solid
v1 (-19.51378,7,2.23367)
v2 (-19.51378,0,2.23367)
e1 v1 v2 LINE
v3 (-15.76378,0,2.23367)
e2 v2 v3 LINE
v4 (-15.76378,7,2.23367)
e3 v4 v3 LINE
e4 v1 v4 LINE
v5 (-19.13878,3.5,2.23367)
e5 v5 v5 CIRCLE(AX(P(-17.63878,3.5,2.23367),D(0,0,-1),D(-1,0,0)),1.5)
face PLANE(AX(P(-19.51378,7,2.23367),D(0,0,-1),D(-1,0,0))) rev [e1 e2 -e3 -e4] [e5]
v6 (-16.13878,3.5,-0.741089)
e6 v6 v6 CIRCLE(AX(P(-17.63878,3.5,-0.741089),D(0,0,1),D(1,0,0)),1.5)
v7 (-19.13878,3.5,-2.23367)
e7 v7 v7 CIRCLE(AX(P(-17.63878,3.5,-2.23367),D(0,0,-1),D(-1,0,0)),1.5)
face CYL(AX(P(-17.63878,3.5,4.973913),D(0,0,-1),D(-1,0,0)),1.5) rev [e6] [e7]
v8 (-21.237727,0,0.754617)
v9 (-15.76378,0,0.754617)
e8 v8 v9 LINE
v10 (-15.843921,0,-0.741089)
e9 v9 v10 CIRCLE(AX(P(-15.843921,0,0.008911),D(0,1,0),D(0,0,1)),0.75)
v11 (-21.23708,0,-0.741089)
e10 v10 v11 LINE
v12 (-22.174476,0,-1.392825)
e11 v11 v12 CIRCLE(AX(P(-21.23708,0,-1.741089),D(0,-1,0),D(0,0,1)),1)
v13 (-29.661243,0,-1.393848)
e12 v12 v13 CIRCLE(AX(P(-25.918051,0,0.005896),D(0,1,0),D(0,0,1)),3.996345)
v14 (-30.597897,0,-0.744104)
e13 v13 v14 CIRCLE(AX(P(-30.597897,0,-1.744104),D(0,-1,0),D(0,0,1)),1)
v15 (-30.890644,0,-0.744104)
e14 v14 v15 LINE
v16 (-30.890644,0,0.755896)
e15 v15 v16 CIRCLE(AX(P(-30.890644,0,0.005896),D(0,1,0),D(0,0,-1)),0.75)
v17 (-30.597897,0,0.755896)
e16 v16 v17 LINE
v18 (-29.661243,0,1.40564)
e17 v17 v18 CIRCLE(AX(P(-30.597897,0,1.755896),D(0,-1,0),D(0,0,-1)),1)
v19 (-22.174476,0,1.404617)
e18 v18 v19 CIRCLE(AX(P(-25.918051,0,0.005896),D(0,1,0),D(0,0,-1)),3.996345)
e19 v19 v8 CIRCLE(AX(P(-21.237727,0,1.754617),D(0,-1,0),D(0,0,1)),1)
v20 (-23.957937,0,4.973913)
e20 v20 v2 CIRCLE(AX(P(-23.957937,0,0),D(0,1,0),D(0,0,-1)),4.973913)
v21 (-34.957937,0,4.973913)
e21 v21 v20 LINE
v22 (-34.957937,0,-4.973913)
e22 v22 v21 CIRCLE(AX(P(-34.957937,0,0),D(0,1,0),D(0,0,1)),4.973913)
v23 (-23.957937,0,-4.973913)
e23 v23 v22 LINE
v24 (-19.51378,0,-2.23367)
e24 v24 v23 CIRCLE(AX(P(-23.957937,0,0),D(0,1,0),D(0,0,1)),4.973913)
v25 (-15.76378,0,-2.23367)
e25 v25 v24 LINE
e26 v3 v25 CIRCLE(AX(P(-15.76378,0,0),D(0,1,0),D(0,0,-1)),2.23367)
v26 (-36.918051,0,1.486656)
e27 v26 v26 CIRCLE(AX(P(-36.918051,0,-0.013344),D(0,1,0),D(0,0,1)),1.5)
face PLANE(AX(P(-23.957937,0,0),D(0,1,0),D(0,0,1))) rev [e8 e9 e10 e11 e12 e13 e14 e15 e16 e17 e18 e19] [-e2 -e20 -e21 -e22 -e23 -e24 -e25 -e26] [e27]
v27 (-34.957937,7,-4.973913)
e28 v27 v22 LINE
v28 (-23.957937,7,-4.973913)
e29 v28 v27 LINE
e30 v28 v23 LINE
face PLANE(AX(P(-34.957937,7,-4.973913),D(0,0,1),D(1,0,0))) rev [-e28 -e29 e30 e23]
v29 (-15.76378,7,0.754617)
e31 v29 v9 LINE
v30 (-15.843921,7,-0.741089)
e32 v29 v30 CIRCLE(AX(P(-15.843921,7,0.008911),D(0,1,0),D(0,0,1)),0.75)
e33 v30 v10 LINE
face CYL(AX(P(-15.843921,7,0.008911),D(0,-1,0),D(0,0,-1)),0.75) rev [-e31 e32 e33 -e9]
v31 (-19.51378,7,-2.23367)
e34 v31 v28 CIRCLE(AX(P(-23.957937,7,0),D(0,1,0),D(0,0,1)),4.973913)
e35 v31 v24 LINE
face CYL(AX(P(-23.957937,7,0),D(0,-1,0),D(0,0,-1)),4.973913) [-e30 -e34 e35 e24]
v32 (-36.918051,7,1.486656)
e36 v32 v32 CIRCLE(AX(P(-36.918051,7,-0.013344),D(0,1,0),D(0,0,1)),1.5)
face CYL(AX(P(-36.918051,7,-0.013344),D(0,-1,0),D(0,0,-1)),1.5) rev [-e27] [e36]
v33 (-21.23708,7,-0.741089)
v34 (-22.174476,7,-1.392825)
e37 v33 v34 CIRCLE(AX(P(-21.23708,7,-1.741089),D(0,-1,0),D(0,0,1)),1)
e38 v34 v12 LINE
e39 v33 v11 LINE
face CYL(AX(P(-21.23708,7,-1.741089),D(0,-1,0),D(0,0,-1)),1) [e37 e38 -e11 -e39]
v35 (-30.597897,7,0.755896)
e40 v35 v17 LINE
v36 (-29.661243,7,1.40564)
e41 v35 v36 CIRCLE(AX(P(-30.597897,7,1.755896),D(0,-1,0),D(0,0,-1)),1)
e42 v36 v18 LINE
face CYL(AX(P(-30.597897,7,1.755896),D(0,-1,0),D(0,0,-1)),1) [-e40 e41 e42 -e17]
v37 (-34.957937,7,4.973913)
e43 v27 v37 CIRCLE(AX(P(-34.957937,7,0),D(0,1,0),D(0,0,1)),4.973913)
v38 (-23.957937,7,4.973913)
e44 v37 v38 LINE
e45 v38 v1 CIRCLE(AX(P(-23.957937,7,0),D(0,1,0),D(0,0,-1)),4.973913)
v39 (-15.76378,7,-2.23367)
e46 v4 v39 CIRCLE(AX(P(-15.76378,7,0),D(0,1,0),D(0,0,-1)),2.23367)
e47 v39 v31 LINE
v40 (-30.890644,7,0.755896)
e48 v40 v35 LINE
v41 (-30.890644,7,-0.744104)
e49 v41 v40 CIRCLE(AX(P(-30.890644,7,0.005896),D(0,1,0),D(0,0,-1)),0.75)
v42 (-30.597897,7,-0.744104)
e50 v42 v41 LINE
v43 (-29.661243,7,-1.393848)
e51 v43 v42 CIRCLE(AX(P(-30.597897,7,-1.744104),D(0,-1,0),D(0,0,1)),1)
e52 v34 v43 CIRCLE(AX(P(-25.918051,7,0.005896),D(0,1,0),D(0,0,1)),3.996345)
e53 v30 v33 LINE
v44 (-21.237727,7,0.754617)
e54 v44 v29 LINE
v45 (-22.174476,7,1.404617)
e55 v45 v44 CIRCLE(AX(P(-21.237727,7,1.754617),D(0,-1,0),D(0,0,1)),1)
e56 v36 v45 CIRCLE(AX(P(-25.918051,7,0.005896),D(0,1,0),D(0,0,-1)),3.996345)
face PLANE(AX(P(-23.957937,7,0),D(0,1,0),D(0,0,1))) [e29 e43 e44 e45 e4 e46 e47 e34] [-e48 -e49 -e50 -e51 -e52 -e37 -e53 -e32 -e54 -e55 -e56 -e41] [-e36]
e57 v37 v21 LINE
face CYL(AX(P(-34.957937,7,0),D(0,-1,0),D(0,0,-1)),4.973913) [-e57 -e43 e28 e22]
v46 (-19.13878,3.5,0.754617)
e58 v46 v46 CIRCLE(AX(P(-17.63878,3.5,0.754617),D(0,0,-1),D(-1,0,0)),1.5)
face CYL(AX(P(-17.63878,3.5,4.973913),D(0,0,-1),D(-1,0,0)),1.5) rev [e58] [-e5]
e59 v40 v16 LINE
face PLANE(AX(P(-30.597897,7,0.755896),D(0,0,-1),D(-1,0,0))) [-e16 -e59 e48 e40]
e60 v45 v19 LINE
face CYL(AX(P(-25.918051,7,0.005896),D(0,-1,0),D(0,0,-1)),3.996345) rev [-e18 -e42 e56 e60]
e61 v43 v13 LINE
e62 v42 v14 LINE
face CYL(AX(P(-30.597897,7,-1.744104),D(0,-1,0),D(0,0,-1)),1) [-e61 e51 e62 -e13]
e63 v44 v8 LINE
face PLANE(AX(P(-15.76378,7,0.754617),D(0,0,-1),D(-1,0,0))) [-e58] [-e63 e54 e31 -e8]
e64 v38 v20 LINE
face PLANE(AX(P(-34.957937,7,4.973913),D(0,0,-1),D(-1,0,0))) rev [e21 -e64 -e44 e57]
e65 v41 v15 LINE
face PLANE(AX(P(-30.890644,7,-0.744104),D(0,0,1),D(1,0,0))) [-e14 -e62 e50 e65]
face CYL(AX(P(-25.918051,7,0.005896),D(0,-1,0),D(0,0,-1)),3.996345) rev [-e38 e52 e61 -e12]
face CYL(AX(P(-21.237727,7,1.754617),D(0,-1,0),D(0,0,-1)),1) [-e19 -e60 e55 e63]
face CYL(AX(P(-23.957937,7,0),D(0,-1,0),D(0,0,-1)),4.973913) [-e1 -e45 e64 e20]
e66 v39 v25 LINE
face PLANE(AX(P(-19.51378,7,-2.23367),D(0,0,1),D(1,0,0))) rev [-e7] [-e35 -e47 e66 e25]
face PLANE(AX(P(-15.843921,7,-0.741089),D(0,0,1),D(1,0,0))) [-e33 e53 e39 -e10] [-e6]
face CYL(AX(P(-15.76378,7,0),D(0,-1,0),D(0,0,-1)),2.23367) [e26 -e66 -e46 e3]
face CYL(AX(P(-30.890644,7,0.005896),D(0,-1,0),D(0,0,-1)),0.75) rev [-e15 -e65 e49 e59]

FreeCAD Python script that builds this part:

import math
import FreeCAD as App
import Part
import Sketcher

doc = App.newDocument("Part")
body = doc.addObject("PartDesign::Body", "Body")

# Sketch on XZ plane
sketch1 = doc.addObject("Sketcher::SketchObject", "Sketch")
body.addObject(sketch1)
sketch1.AttachmentSupport = (doc.XZ_Plane, [""])
sketch1.MapMode = "FlatFace"
sketch1.addGeometry(Part.LineSegment(App.Vector(-15.8, -2.2, 0), App.Vector(-19.5, -2.2, 0)), False)
sketch1.addGeometry(Part.ArcOfCircle(Part.Circle(App.Vector(-24, 0, 0), App.Vector(0, 0, 1), 5), math.radians(-90), math.radians(-27)), False)
sketch1.addGeometry(Part.LineSegment(App.Vector(-24, -5, 0), App.Vector(-35, -5, 0)), False)
sketch1.addGeometry(Part.ArcOfCircle(Part.Circle(App.Vector(-35, 0, 0), App.Vector(0, 0, 1), 5), math.radians(90), math.radians(270)), False)
sketch1.addGeometry(Part.LineSegment(App.Vector(-35, 5, 0), App.Vector(-24, 5, 0)), False)
sketch1.addGeometry(Part.ArcOfCircle(Part.Circle(App.Vector(-24, 0, 0), App.Vector(0, 0, 1), 5), math.radians(27), math.radians(90)), False)
sketch1.addGeometry(Part.LineSegment(App.Vector(-19.5, 2.2, 0), App.Vector(-15.8, 2.2, 0)), False)
sketch1.addGeometry(Part.ArcOfCircle(Part.Circle(App.Vector(-15.8, 0, 0), App.Vector(0, 0, 1), 2.2), math.radians(-90), math.radians(90)), False)
sketch1.addConstraint(Sketcher.Constraint("Coincident", 0, 2, 1, 2))
sketch1.addConstraint(Sketcher.Constraint("Tangent", 1, 1, 2, 1))
sketch1.addConstraint(Sketcher.Constraint("Tangent", 2, 2, 3, 2))
sketch1.addConstraint(Sketcher.Constraint("Tangent", 3, 1, 4, 1))
sketch1.addConstraint(Sketcher.Constraint("Tangent", 4, 2, 5, 2))
sketch1.addConstraint(Sketcher.Constraint("Coincident", 5, 1, 6, 1))
sketch1.addConstraint(Sketcher.Constraint("Tangent", 6, 2, 7, 2))
sketch1.addConstraint(Sketcher.Constraint("Tangent", 7, 1, 0, 1))
sketch1.addConstraint(Sketcher.Constraint("Horizontal", 0))
sketch1.addConstraint(Sketcher.Constraint("Horizontal", 2))
sketch1.addConstraint(Sketcher.Constraint("Horizontal", 4))
sketch1.addConstraint(Sketcher.Constraint("Horizontal", 6))
sketch1.addConstraint(Sketcher.Constraint("Coincident", 5, 3, 1, 3))
sketch1.addConstraint(Sketcher.Constraint("Equal", 1, 3))
sketch1.addConstraint(Sketcher.Constraint("Symmetric", 0, 2, 5, 1, -1))
sketch1.addConstraint(Sketcher.Constraint("DistanceX", 2, 2, 2, 1, 11.0))
sketch1.addConstraint(Sketcher.Constraint("DistanceX", 0, 2, 0, 1, 3.75))
sketch1.addConstraint(Sketcher.Constraint("Radius", 7, 2.23367))
sketch1.addConstraint(Sketcher.Constraint("Radius", 1, 4.973913))
sketch1.addConstraint(Sketcher.Constraint("DistanceX", 7, 3, -1, 1, 15.76378))
pad1 = doc.addObject("PartDesign::Pad", "Pad")
body.addObject(pad1)
pad1.Profile = sketch1
pad1.Length = 7
pad1.Reversed = True

# Sketch on XZ plane
sketch2 = doc.addObject("Sketcher::SketchObject", "Sketch001")
body.addObject(sketch2)
sketch2.AttachmentSupport = (doc.XZ_Plane, [""])
sketch2.MapMode = "FlatFace"
sketch2.addGeometry(Part.Circle(App.Vector(-36.92, -0.01, 0), App.Vector(0, 0, 1), 1.5), False)
sketch2.addGeometry(Part.LineSegment(App.Vector(-21.24, 0.75, 0), App.Vector(-15.76, 0.75, 0)), False)
sketch2.addGeometry(Part.ArcOfCircle(Part.Circle(App.Vector(-15.84, 0.01, 0), App.Vector(0, 0, 1), 0.75), math.radians(-90), math.radians(84)), False)
sketch2.addGeometry(Part.LineSegment(App.Vector(-15.84, -0.74, 0), App.Vector(-21.24, -0.74, 0)), False)
sketch2.addGeometry(Part.ArcOfCircle(Part.Circle(App.Vector(-21.24, -1.74, 0), App.Vector(0, 0, 1), 1), math.radians(90), math.radians(160)), False)
sketch2.addGeometry(Part.ArcOfCircle(Part.Circle(App.Vector(-25.92, 0.01, 0), App.Vector(0, 0, 1), 4), math.radians(-159), math.radians(-20)), False)
sketch2.addGeometry(Part.ArcOfCircle(Part.Circle(App.Vector(-30.6, -1.74, 0), App.Vector(0, 0, 1), 1), math.radians(21), math.radians(90)), False)
sketch2.addGeometry(Part.LineSegment(App.Vector(-30.6, -0.74, 0), App.Vector(-30.89, -0.74, 0)), False)
sketch2.addGeometry(Part.ArcOfCircle(Part.Circle(App.Vector(-30.89, 0.01, 0), App.Vector(0, 0, 1), 0.75), math.radians(90), math.radians(270)), False)
sketch2.addGeometry(Part.LineSegment(App.Vector(-30.89, 0.76, 0), App.Vector(-30.6, 0.76, 0)), False)
sketch2.addGeometry(Part.ArcOfCircle(Part.Circle(App.Vector(-30.6, 1.76, 0), App.Vector(0, 0, 1), 1), math.radians(-90), math.radians(-21)), False)
sketch2.addGeometry(Part.ArcOfCircle(Part.Circle(App.Vector(-25.92, 0.01, 0), App.Vector(0, 0, 1), 4), math.radians(20), math.radians(159)), False)
sketch2.addGeometry(Part.ArcOfCircle(Part.Circle(App.Vector(-21.24, 1.75, 0), App.Vector(0, 0, 1), 1), math.radians(-160), math.radians(-90)), False)
sketch2.addConstraint(Sketcher.Constraint("Coincident", 1, 2, 2, 2))
sketch2.addConstraint(Sketcher.Constraint("Tangent", 2, 1, 3, 1))
sketch2.addConstraint(Sketcher.Constraint("Tangent", 3, 2, 4, 1))
sketch2.addConstraint(Sketcher.Constraint("Coincident", 4, 2, 5, 2))
sketch2.addConstraint(Sketcher.Constraint("Tangent", 5, 1, 6, 1))
sketch2.addConstraint(Sketcher.Constraint("Tangent", 6, 2, 7, 1))
sketch2.addConstraint(Sketcher.Constraint("Tangent", 7, 2, 8, 2))
sketch2.addConstraint(Sketcher.Constraint("Tangent", 8, 1, 9, 1))
sketch2.addConstraint(Sketcher.Constraint("Tangent", 9, 2, 10, 1))
sketch2.addConstraint(Sketcher.Constraint("Tangent", 10, 2, 11, 2))
sketch2.addConstraint(Sketcher.Constraint("Tangent", 11, 1, 12, 1))
sketch2.addConstraint(Sketcher.Constraint("Tangent", 12, 2, 1, 1))
sketch2.addConstraint(Sketcher.Constraint("Horizontal", 1))
sketch2.addConstraint(Sketcher.Constraint("Horizontal", 3))
sketch2.addConstraint(Sketcher.Constraint("Horizontal", 7))
sketch2.addConstraint(Sketcher.Constraint("Horizontal", 9))
sketch2.addConstraint(Sketcher.Constraint("Coincident", 11, 3, 5, 3))
sketch2.addConstraint(Sketcher.Constraint("Equal", 4, 6))
sketch2.addConstraint(Sketcher.Constraint("Equal", 2, 8))
sketch2.addConstraint(Sketcher.Constraint("Equal", 6, 10))
sketch2.addConstraint(Sketcher.Constraint("Equal", 5, 11))
sketch2.addConstraint(Sketcher.Constraint("Equal", 10, 12))
sketch2.addConstraint(Sketcher.Constraint("Horizontal", 5, 3, 8, 3))
sketch2.addConstraint(Sketcher.Constraint("Vertical", 4, 2, 11, 1))
sketch2.addConstraint(Sketcher.Constraint("Diameter", 0, 3.0))
sketch2.addConstraint(Sketcher.Constraint("Radius", 4, 1.0))
sketch2.addConstraint(Sketcher.Constraint("Radius", 2, 0.75))
sketch2.addConstraint(Sketcher.Constraint("DistanceX", 0, 3, 5, 3, 11.0))
sketch2.addConstraint(Sketcher.Constraint("DistanceY", 11, 1, 12, 3, 0.35))
sketch2.addConstraint(Sketcher.Constraint("Radius", 5, 3.996345))
sketch2.addConstraint(Sketcher.Constraint("DistanceX", 3, 2, 3, 1, 5.393159))
sketch2.addConstraint(Sketcher.Constraint("DistanceX", 4, 3, 1, 2, 5.4733))
sketch2.addConstraint(Sketcher.Constraint("DistanceX", 8, 3, 5, 1, 1.229401))
sketch2.addConstraint(Sketcher.Constraint("DistanceX", 0, 3, -1, 1, 36.918051))
sketch2.addConstraint(Sketcher.Constraint("DistanceY", -1, 1, 2, 3, 0.008911))
sketch2.addConstraint(Sketcher.Constraint("DistanceY", 0, 3, 5, 3, 0.01924))
pocket1 = doc.addObject("PartDesign::Pocket", "Pocket")
body.addObject(pocket1)
pocket1.Profile = sketch2
pocket1.Type = "ThroughAll"

# Sketch on XY plane
sketch3 = doc.addObject("Sketcher::SketchObject", "Sketch002")
body.addObject(sketch3)
sketch3.AttachmentSupport = (doc.XY_Plane, [""])
sketch3.MapMode = "FlatFace"
sketch3.AttachmentOffset = App.Placement(App.Vector(0, 0, -2.23367), App.Rotation())
sketch3.addGeometry(Part.Circle(App.Vector(-17.6, 3.5, 0), App.Vector(0, 0, 1), 1.5), False)
sketch3.addConstraint(Sketcher.Constraint("Diameter", 0, 3.0))
sketch3.addConstraint(Sketcher.Constraint("DistanceY", -1, 1, 0, 3, 3.5))
sketch3.addConstraint(Sketcher.Constraint("DistanceX", 0, 3, -1, 1, 17.63878))
pocket2 = doc.addObject("PartDesign::Pocket", "Pocket001")
body.addObject(pocket2)
pocket2.Profile = sketch3
pocket2.Type = "ThroughAll"
pocket2.Reversed = True

doc.recompute()
